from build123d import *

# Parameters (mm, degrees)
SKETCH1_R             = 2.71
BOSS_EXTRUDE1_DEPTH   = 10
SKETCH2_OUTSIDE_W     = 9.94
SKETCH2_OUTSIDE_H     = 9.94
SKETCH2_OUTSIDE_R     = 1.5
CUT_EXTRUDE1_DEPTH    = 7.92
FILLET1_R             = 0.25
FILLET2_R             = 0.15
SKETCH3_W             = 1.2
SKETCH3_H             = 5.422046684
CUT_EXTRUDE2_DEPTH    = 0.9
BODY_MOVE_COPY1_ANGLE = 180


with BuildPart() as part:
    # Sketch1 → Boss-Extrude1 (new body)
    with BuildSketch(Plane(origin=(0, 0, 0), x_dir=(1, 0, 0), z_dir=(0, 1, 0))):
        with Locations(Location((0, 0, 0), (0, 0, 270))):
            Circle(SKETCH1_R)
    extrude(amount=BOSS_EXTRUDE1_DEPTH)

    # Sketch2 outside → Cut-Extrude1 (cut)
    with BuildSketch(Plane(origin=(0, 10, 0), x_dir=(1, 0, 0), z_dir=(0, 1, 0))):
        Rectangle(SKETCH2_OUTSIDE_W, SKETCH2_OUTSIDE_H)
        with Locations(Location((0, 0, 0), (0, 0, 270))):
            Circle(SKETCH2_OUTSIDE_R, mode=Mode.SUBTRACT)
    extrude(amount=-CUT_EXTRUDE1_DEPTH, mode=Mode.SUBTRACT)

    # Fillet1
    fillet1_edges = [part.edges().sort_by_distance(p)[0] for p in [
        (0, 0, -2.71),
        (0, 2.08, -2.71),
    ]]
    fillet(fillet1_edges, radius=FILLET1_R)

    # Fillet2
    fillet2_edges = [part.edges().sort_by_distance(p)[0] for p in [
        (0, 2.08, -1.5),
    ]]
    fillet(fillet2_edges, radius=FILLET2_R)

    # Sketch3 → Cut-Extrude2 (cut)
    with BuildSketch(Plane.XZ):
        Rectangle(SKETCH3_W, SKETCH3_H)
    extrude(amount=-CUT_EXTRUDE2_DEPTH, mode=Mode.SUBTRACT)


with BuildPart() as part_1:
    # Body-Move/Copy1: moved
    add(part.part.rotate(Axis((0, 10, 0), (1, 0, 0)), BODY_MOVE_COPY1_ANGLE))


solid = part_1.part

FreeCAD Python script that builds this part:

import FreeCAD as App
import Part
import Sketcher
from FreeCAD import Vector
Q = App.Units.Quantity


def edges_at(feature, points):
    """Names of the edges that pass closest to the given points."""
    edges = feature.Shape.Edges
    near = lambda p: min(range(len(edges)), key=lambda i: edges[i].distToShape(Part.Vertex(*p))[0])
    return sorted({f"Edge{near(p) + 1}" for p in points})


def add_polygon(sketch, points):
    """Adds a closed chain of lines whose ends are joined by coincident constraints."""
    first, n = sketch.GeometryCount, len(points)
    for a, b in zip(points, points[1:] + points[:1]):
        sketch.addGeometry(Part.LineSegment(App.Vector(*a, 0), App.Vector(*b, 0)), False)
    for i in range(n):
        sketch.addConstraint(Sketcher.Constraint("Coincident", first + i, 2, first + (i + 1) % n, 1))

doc = App.newDocument("Part")
body = doc.addObject("PartDesign::Body", "Body")

sketch1 = doc.addObject("Sketcher::SketchObject", "Sketch")
body.addObject(sketch1)
sketch1.AttachmentSupport = (doc.XZ_Plane, [""])
sketch1.MapMode = "FlatFace"
sketch1.addGeometry(Part.Circle(Vector(0, 0, 0), Vector(0, 0, 1), 2.7), False)
sketch1.addConstraint([
    Sketcher.Constraint("Coincident", 0, 3, -1, 1),
    Sketcher.Constraint("Diameter", 0, Q("5.42 mm")),
])
pad1 = doc.addObject("PartDesign::Pad", "Pad")
body.addObject(pad1)
pad1.Profile = sketch1
pad1.Length = 10
pad1.Reversed = True

sketch2 = doc.addObject("Sketcher::SketchObject", "Sketch001")
body.addObject(sketch2)
sketch2.AttachmentSupport = (doc.XZ_Plane, [""])
sketch2.MapMode = "FlatFace"
sketch2.AttachmentOffset = App.Placement(Vector(0, 0, -10), App.Rotation())
add_polygon(sketch2, [(-5, -5), (-5, 5), (5, 5), (5, -5)])
sketch2.addGeometry(Part.Circle(Vector(0, 0, 0), Vector(0, 0, 1), 1.5), False)
sketch2.addConstraint([
    Sketcher.Constraint("Vertical", 0),
    Sketcher.Constraint("Horizontal", 1),
    Sketcher.Constraint("Vertical", 2),
    Sketcher.Constraint("Horizontal", 3),
    Sketcher.Constraint("Coincident", 4, 3, -1, 1),
    Sketcher.Constraint("Symmetric", 0, 2, 2, 2, -1, 1),
    Sketcher.Constraint("Equal", 3, 0),
    Sketcher.Constraint("Diameter", 4, Q("3 mm")),
    Sketcher.Constraint("DistanceX", 1, 1, 1, 2, Q("9.94 mm")),
])
pocket1 = doc.addObject("PartDesign::Pocket", "Pocket")
body.addObject(pocket1)
pocket1.Profile = sketch2
pocket1.Length = 7.92
pocket1.Reversed = True
doc.recompute()

fillet = doc.addObject("PartDesign::Fillet", "Fillet")
body.addObject(fillet)
fillet.Base = (pocket1, edges_at(pocket1, [(0, 0, -2.71), (0, 2.08, -2.71)]))
fillet.Radius = 0.25
doc.recompute()

fillet2 = doc.addObject("PartDesign::Fillet", "Fillet001")
body.addObject(fillet2)
fillet2.Base = (fillet, edges_at(fillet, [(0, 2.08, -1.5)]))
fillet2.Radius = 0.15

sketch3 = doc.addObject("Sketcher::SketchObject", "Sketch002")
body.addObject(sketch3)
sketch3.AttachmentSupport = (doc.XZ_Plane, [""])
sketch3.MapMode = "FlatFace"
add_polygon(sketch3, [(-0.6, 2.7), (-0.6, -2.7), (0.6, -2.7), (0.6, 2.7)])
sketch3.addConstraint([
    Sketcher.Constraint("Vertical", 0),
    Sketcher.Constraint("Horizontal", 1),
    Sketcher.Constraint("Vertical", 2),
    Sketcher.Constraint("Horizontal", 3),
    Sketcher.Constraint("Symmetric", 0, 2, 2, 2, -1, 1),
    Sketcher.Constraint("DistanceX", 1, 1, 1, 2, Q("1.2 mm")),
    Sketcher.Constraint("DistanceY", 0, 2, 0, 1, Q("5.422047 mm")),
])
pocket2 = doc.addObject("PartDesign::Pocket", "Pocket001")
body.addObject(pocket2)
pocket2.Profile = sketch3
pocket2.Length = 0.9
body2 = doc.addObject("PartDesign::Body", "Body001")
doc.recompute()

body.Placement = App.Placement(Vector(0, 20, 0), App.Rotation(Vector(1, 0, 0), 180))
boolean = doc.addObject("PartDesign::Boolean", "Boolean")
body2.addObject(boolean)
boolean.Type = "Fuse"
boolean.addObjects([body])

doc.recompute()
